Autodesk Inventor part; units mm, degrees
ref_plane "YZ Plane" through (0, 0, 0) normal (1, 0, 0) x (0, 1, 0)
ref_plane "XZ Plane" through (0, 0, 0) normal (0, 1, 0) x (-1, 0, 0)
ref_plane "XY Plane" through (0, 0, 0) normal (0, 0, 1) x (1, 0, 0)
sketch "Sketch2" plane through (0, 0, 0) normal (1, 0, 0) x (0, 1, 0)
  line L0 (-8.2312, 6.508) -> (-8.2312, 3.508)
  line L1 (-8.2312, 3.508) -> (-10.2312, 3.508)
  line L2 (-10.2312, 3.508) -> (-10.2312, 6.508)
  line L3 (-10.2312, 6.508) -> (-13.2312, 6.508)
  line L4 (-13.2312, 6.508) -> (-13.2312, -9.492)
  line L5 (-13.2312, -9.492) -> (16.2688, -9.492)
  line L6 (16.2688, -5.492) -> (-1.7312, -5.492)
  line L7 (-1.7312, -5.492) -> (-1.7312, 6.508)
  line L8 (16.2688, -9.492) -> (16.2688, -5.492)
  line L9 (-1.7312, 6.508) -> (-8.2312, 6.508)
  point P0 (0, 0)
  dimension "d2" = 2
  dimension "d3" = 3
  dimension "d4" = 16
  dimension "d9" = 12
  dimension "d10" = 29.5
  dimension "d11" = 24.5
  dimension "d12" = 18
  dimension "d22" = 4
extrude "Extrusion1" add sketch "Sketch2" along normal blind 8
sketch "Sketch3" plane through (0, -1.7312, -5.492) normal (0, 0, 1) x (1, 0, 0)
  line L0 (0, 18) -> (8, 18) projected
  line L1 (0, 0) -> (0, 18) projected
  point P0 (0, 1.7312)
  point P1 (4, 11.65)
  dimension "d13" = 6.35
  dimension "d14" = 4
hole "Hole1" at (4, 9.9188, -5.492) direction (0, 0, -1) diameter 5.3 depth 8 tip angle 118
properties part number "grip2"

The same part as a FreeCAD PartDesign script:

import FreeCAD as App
import Part
import Sketcher
from FreeCAD import Vector
Q = App.Units.Quantity


def add_polygon(sketch, points):
    """Adds a closed chain of lines whose ends are joined by coincident constraints."""
    first, n = sketch.GeometryCount, len(points)
    for a, b in zip(points, points[1:] + points[:1]):
        sketch.addGeometry(Part.LineSegment(App.Vector(*a, 0), App.Vector(*b, 0)), False)
    for i in range(n):
        sketch.addConstraint(Sketcher.Constraint("Coincident", first + i, 2, first + (i + 1) % n, 1))

doc = App.newDocument("Part")
body = doc.addObject("PartDesign::Body", "Body")

# Sketch on YZ plane
sketch1 = body.newObject("Sketcher::SketchObject", "Sketch")
sketch1.AttachmentSupport = (doc.getObject("YZ_Plane"), [""])
sketch1.MapMode = "FlatFace"
add_polygon(sketch1, [(-1.7, 6.5), (-8.2, 6.5), (-8.2, 3.5), (-10.2, 3.5), (-10.2, 6.5), (-13.2, 6.5), (-13.2, -9.5), (16.3, -9.5), (16.3, -5.5), (-1.7, -5.5)])  # lines 0-9
sketch1.addConstraint(Sketcher.Constraint("Horizontal", 0))
sketch1.addConstraint(Sketcher.Constraint("Vertical", 1))
sketch1.addConstraint(Sketcher.Constraint("Horizontal", 2))
sketch1.addConstraint(Sketcher.Constraint("Vertical", 3))
sketch1.addConstraint(Sketcher.Constraint("Horizontal", 4))
sketch1.addConstraint(Sketcher.Constraint("Vertical", 5))
sketch1.addConstraint(Sketcher.Constraint("Horizontal", 6))
sketch1.addConstraint(Sketcher.Constraint("Vertical", 7))
sketch1.addConstraint(Sketcher.Constraint("Horizontal", 8))
sketch1.addConstraint(Sketcher.Constraint("Vertical", 9))
sketch1.addConstraint(Sketcher.Constraint("Horizontal", 0, 2, 3, 2))
sketch1.addConstraint(Sketcher.Constraint("Equal", 4, 1))
sketch1.addConstraint(Sketcher.Constraint("DistanceX", 2, 2, 2, 1, Q("2 mm")))
sketch1.addConstraint(Sketcher.Constraint("DistanceX", 4, 2, 4, 1, Q("3 mm")))
sketch1.addConstraint(Sketcher.Constraint("DistanceX", 8, 2, 8, 1, Q("18 mm")))
sketch1.addConstraint(Sketcher.Constraint("DistanceY", 5, 2, 5, 1, Q("16 mm")))
sketch1.addConstraint(Sketcher.Constraint("DistanceY", 7, 1, 7, 2, Q("4 mm")))
sketch1.addConstraint(Sketcher.Constraint("DistanceX", 6, 1, 6, 2, Q("29.5 mm")))
sketch1.addConstraint(Sketcher.Constraint("DistanceY", -1, 1, 0, 2, Q("6.508 mm")))
sketch1.addConstraint(Sketcher.Constraint("DistanceX", 0, 2, -1, 1, Q("8.2312 mm")))
pad1 = body.newObject("PartDesign::Pad", "Pad")
pad1.Profile = sketch1
pad1.Length = 8

# Sketch on XY plane
sketch2 = body.newObject("Sketcher::SketchObject", "Sketch001")
sketch2.AttachmentSupport = (doc.getObject("XY_Plane"), [""])
sketch2.MapMode = "FlatFace"
sketch2.AttachmentOffset = App.Placement(Vector(0, 0, -5.492), App.Rotation())
sketch2.addGeometry(Part.Circle(Vector(4, 9.9, 0), Vector(0, 0, 1), 2.6), False)
sketch2.addConstraint(Sketcher.Constraint("Diameter", 0, Q("5.3 mm")))
sketch2.addConstraint(Sketcher.Constraint("DistanceX", -1, 1, 0, 3, Q("4 mm")))
sketch2.addConstraint(Sketcher.Constraint("DistanceY", -1, 1, 0, 3, Q("9.9188 mm")))
doc.recompute()
hole = body.newObject("PartDesign::Hole", "Hole")
hole.Profile = sketch2
hole.ThreadType = "None"
hole.Diameter = 5.3
hole.DepthType = "Dimension"
hole.Depth = 8
hole.DrillPoint = "Angled"
hole.DrillPointAngle = 118

doc.recompute()
